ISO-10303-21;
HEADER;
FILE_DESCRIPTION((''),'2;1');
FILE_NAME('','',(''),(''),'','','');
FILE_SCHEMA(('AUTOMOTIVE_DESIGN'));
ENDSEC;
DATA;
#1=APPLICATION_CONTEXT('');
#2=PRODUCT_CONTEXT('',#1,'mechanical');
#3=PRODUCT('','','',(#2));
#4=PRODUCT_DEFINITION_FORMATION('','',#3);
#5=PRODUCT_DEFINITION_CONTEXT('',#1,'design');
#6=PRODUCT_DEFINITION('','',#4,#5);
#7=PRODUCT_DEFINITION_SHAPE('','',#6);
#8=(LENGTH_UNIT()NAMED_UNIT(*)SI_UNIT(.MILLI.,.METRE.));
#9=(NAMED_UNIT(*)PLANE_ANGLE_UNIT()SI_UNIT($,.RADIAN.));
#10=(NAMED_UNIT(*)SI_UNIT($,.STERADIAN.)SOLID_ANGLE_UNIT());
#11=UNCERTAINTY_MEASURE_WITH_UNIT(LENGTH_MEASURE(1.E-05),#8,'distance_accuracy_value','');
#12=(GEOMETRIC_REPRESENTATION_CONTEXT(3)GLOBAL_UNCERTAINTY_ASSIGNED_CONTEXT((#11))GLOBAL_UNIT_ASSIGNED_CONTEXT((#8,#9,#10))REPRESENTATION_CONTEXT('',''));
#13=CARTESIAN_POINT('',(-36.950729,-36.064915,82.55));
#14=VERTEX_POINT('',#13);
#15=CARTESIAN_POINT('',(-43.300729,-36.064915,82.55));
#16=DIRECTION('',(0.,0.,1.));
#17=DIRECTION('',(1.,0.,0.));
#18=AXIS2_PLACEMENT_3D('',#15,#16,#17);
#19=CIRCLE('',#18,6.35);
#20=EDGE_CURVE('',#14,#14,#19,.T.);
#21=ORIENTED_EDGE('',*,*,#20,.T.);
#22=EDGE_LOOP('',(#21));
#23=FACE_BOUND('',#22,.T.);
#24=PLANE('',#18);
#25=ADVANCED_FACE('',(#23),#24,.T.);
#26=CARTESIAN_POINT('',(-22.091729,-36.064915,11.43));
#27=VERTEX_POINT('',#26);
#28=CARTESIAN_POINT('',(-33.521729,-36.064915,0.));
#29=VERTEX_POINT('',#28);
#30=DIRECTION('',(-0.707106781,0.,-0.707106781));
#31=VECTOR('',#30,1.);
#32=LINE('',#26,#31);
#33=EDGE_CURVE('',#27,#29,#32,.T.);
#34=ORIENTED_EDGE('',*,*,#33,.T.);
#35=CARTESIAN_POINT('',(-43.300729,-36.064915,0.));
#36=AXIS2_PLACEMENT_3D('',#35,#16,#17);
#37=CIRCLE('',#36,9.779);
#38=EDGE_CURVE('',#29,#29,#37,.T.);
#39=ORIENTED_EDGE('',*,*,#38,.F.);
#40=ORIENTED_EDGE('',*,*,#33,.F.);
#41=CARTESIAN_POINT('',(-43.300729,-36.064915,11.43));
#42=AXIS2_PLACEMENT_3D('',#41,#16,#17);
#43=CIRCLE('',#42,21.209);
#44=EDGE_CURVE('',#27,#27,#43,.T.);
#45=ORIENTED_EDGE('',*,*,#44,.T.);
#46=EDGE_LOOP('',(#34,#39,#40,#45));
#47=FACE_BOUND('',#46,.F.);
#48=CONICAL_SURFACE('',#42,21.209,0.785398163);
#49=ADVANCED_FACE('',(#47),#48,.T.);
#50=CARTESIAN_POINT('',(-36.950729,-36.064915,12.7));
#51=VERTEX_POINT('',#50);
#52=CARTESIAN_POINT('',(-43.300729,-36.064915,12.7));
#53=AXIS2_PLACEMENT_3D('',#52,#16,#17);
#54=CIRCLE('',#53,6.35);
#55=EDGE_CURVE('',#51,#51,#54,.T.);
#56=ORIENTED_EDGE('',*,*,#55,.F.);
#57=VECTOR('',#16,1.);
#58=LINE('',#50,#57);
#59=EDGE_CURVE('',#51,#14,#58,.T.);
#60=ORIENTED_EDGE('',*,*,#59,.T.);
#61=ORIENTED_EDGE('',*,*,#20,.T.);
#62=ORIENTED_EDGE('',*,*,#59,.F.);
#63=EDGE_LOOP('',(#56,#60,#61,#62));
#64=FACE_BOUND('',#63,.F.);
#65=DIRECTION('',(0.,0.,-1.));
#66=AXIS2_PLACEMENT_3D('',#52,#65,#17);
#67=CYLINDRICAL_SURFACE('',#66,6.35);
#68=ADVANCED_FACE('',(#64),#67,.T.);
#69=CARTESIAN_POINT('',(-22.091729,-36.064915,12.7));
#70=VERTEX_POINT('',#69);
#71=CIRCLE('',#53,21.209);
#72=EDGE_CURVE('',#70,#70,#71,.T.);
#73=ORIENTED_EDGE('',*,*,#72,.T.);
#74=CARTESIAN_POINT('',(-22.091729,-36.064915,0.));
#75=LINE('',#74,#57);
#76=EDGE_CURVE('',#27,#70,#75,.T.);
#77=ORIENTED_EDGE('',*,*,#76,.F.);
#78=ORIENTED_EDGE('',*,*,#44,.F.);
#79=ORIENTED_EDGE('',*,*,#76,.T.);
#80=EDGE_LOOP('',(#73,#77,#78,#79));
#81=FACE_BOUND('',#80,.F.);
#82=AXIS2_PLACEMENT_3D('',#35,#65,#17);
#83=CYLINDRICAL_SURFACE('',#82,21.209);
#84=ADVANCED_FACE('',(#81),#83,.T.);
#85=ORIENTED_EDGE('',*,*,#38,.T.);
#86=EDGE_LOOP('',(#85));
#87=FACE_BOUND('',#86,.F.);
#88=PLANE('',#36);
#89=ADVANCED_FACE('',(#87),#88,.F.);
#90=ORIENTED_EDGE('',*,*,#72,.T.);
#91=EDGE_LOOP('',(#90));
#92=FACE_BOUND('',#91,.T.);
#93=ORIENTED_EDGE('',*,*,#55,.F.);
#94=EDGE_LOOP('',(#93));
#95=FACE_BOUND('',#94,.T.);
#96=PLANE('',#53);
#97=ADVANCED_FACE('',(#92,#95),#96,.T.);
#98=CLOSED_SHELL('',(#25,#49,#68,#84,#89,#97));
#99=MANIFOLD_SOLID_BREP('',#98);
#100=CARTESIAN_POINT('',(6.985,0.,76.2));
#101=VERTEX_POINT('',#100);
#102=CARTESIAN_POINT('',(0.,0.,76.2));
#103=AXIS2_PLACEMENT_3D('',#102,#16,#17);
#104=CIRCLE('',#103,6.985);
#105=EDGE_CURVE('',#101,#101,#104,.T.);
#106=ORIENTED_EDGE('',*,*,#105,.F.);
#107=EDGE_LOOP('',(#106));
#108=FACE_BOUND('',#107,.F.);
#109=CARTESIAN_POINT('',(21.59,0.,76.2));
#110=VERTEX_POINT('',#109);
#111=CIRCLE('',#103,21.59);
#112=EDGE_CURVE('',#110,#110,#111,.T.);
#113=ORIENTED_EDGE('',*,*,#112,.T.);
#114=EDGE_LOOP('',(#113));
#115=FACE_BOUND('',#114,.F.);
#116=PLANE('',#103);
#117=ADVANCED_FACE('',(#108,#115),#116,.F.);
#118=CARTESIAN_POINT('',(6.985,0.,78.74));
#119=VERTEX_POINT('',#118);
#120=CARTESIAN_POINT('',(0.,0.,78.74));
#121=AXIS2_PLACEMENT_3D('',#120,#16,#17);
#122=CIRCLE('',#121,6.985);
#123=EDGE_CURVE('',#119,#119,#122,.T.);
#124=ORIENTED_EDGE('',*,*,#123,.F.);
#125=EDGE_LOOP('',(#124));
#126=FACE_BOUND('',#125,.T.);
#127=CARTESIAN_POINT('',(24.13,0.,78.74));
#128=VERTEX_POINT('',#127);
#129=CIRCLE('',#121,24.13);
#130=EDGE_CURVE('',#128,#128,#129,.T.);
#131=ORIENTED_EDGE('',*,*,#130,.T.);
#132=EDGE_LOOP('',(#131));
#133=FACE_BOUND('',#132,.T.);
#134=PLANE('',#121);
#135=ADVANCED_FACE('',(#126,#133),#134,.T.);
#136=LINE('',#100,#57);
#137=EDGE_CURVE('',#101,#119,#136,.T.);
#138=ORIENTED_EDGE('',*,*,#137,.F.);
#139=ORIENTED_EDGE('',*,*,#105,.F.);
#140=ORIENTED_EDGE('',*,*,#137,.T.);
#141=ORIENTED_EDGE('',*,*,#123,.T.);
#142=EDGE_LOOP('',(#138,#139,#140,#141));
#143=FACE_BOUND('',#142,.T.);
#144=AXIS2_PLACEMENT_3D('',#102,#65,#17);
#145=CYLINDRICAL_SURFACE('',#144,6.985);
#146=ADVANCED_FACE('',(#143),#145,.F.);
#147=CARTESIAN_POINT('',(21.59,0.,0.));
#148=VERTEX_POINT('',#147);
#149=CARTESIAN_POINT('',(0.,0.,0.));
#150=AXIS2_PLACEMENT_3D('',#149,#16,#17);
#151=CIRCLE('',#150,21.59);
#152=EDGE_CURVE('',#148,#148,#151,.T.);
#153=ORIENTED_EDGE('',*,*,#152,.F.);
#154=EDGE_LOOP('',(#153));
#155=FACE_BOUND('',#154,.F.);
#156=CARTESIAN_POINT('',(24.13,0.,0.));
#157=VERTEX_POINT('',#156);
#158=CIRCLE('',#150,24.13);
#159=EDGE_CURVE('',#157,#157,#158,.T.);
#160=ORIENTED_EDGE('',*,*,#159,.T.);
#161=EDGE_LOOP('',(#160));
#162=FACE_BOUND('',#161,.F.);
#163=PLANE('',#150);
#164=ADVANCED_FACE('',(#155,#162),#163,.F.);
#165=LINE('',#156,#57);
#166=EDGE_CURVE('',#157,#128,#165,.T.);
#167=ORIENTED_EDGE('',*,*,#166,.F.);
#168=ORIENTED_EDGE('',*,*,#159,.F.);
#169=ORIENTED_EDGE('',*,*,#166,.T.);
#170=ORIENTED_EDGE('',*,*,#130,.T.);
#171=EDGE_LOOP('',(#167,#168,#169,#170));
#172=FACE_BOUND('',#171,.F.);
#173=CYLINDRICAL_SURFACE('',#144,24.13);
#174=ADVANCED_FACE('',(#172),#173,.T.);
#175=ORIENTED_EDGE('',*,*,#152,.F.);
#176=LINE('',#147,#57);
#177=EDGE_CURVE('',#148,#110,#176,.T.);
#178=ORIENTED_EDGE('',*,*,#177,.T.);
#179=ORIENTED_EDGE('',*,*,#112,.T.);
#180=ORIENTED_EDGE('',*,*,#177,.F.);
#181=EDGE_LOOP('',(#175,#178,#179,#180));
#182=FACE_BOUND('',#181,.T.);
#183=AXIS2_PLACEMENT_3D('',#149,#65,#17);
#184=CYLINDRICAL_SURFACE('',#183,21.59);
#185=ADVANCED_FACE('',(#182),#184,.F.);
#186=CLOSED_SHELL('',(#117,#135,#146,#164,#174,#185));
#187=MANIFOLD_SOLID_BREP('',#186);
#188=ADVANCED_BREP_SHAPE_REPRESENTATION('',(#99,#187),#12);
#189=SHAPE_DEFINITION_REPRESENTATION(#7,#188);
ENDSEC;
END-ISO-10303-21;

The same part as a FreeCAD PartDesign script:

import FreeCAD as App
import Part
import Sketcher

V = App.Vector
Q = App.Units.Quantity


def edges_at(feature, points):
    """Names of the edges that pass closest to the given points."""
    edges = feature.Shape.Edges
    near = lambda p: min(range(len(edges)), key=lambda i: edges[i].distToShape(Part.Vertex(*p))[0])
    return sorted({f"Edge{near(p) + 1}" for p in points})

doc = App.newDocument("Part")
body = doc.addObject("PartDesign::Body", "Body")

sketch1 = body.newObject("Sketcher::SketchObject", "Sketch")
sketch1.AttachmentSupport = (doc.getObject("XY_Plane"), [""])
sketch1.MapMode = "FlatFace"
sketch1.addGeometry([
    Part.Circle(V(0, 0, 0), V(0, 0, 1), 24),
    Part.Circle(V(0, 0, 0), V(0, 0, 1), 22),
], False)
sketch1.addConstraint([
    Sketcher.Constraint("Coincident", 0, 3, -1, 1),
    Sketcher.Constraint("Coincident", 1, 3, -1, 1),
    Sketcher.Constraint("Diameter", 0, Q("1.9 in")),
    Sketcher.Constraint("Diameter", 1, Q("1.7 in")),
])
pad1 = body.newObject("PartDesign::Pad", "Pad")
pad1.Profile = sketch1
pad1.Length = Q("3 in")

sketch2 = body.newObject("Sketcher::SketchObject", "Sketch001")
sketch2.AttachmentSupport = (doc.getObject("XY_Plane"), [""])
sketch2.MapMode = "FlatFace"
sketch2.AttachmentOffset = App.Placement(V(0, 0, 3 * 25.4), App.Rotation())
sketch2.addGeometry([
    Part.Circle(V(0, 0, 0), V(0, 0, 1), 24),
    Part.Circle(V(0, 0, 0), V(0, 0, 1), 7),
], False)
sketch2.addConstraint([
    Sketcher.Constraint("Coincident", 0, 3, -1, 1),
    Sketcher.Constraint("Coincident", 1, 3, -1, 1),
    Sketcher.Constraint("Diameter", 0, Q("1.9 in")),
    Sketcher.Constraint("Diameter", 1, Q("0.55 in")),
])
pad2 = body.newObject("PartDesign::Pad", "Pad001")
pad2.Profile = sketch2
pad2.Length = Q("0.1 in")
body2 = doc.addObject("PartDesign::Body", "Body001")

sketch3 = body2.newObject("Sketcher::SketchObject", "Sketch002")
sketch3.AttachmentSupport = (doc.getObject("XY_Plane001"), [""])
sketch3.MapMode = "FlatFace"
sketch3.addGeometry(Part.Circle(V(-43, -36, 0), V(0, 0, 1), 21), False)
sketch3.addConstraint([
    Sketcher.Constraint("Diameter", 0, Q("1.67 in")),
    Sketcher.Constraint("DistanceX", 0, 3, -1, 1, 43.300729),
    Sketcher.Constraint("DistanceY", 0, 3, -1, 1, 36.064915),
])
pad3 = body2.newObject("PartDesign::Pad", "Pad002")
pad3.Profile = sketch3
pad3.Length = Q("0.5 in")
doc.recompute()

chamfer = body2.newObject("PartDesign::Chamfer", "Chamfer")
chamfer.Base = (pad3, edges_at(pad3, [(-64.51, -36.065, 0)]))
chamfer.Size = Q("0.45 in")

sketch4 = body2.newObject("Sketcher::SketchObject", "Sketch003")
sketch4.AttachmentSupport = (doc.getObject("XY_Plane001"), [""])
sketch4.MapMode = "FlatFace"
sketch4.AttachmentOffset = App.Placement(V(0, 0, 0.5 * 25.4), App.Rotation())
sketch4.addGeometry(Part.Circle(V(-43, -36, 0), V(0, 0, 1), 6), False)
sketch4.addConstraint([
    Sketcher.Constraint("Diameter", 0, Q("0.5 in")),
    Sketcher.Constraint("DistanceX", 0, 3, -1, 1, 43.300729),
    Sketcher.Constraint("DistanceY", 0, 3, -1, 1, 36.064915),
])
pad4 = body2.newObject("PartDesign::Pad", "Pad003")
pad4.Profile = sketch4
pad4.Length = Q("2.75 in")

doc.recompute()
